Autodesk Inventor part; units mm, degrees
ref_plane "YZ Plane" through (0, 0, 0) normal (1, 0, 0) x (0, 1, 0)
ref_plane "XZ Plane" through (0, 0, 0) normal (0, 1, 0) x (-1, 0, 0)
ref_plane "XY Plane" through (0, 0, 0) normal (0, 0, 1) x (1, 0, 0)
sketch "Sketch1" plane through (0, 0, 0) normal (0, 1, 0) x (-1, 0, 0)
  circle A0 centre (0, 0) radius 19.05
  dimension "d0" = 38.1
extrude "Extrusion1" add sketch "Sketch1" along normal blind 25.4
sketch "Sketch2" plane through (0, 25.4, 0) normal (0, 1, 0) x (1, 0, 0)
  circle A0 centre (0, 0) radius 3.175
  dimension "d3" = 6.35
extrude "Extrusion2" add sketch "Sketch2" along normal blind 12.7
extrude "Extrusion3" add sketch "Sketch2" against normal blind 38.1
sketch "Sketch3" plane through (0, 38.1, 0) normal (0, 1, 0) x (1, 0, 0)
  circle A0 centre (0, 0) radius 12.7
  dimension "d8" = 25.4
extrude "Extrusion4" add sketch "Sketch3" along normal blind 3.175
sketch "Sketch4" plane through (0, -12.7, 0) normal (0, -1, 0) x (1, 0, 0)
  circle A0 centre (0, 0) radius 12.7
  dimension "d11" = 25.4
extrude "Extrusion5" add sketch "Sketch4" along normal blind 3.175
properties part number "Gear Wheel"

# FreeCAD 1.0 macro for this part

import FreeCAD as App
import Part
import Sketcher
Q = App.Units.Quantity

doc = App.newDocument("Part")
body = doc.addObject("PartDesign::Body", "Body")

# Sketch on XZ plane
sketch1 = body.newObject("Sketcher::SketchObject", "Sketch")
sketch1.AttachmentSupport = (doc.getObject("XZ_Plane"), [""])
sketch1.MapMode = "FlatFace"
sketch1.addGeometry(Part.Circle(App.Vector(0, 0, 0), App.Vector(0, 0, 1), 19), False)
sketch1.addConstraint(Sketcher.Constraint("Coincident", 0, 3, -1, 1))
sketch1.addConstraint(Sketcher.Constraint("Diameter", 0, Q("1.5 in")))
pad1 = body.newObject("PartDesign::Pad", "Pad")
pad1.Profile = sketch1
pad1.Length = Q("1 in")
pad1.Reversed = True

# Sketch on XZ plane
sketch2 = body.newObject("Sketcher::SketchObject", "Sketch001")
sketch2.AttachmentSupport = (doc.getObject("XZ_Plane"), [""])
sketch2.MapMode = "FlatFace"
sketch2.AttachmentOffset = App.Placement(App.Vector(0, 0, -1 * 25.4), App.Rotation())
sketch2.addGeometry(Part.Circle(App.Vector(0, 0, 0), App.Vector(0, 0, 1), 3.2), False)
sketch2.addConstraint(Sketcher.Constraint("Coincident", 0, 3, -1, 1))
sketch2.addConstraint(Sketcher.Constraint("Diameter", 0, Q("0.25 in")))
pad2 = body.newObject("PartDesign::Pad", "Pad001")
pad2.Profile = sketch2
pad2.Length = Q("0.5 in")
pad2.Reversed = True

# Sketch on XZ plane
sketch3 = body.newObject("Sketcher::SketchObject", "Sketch002")
sketch3.AttachmentSupport = (doc.getObject("XZ_Plane"), [""])
sketch3.MapMode = "FlatFace"
sketch3.AttachmentOffset = App.Placement(App.Vector(0, 0, -1 * 25.4), App.Rotation())
sketch3.addGeometry(Part.Circle(App.Vector(0, 0, 0), App.Vector(0, 0, 1), 3.2), False)
sketch3.addConstraint(Sketcher.Constraint("Coincident", 0, 3, -1, 1))
sketch3.addConstraint(Sketcher.Constraint("Diameter", 0, Q("0.25 in")))
pad3 = body.newObject("PartDesign::Pad", "Pad002")
pad3.Profile = sketch3
pad3.Length = Q("1.5 in")

# Sketch on XZ plane
sketch4 = body.newObject("Sketcher::SketchObject", "Sketch003")
sketch4.AttachmentSupport = (doc.getObject("XZ_Plane"), [""])
sketch4.MapMode = "FlatFace"
sketch4.AttachmentOffset = App.Placement(App.Vector(0, 0, -1.5 * 25.4), App.Rotation())
sketch4.addGeometry(Part.Circle(App.Vector(0, 0, 0), App.Vector(0, 0, 1), 13), False)
sketch4.addConstraint(Sketcher.Constraint("Coincident", 0, 3, -1, 1))
sketch4.addConstraint(Sketcher.Constraint("Diameter", 0, Q("1 in")))
pad4 = body.newObject("PartDesign::Pad", "Pad003")
pad4.Profile = sketch4
pad4.Length = Q("0.125 in")
pad4.Reversed = True

# Sketch on XZ plane
sketch5 = body.newObject("Sketcher::SketchObject", "Sketch004")
sketch5.AttachmentSupport = (doc.getObject("XZ_Plane"), [""])
sketch5.MapMode = "FlatFace"
sketch5.AttachmentOffset = App.Placement(App.Vector(0, 0, 0.5 * 25.4), App.Rotation())
sketch5.addGeometry(Part.Circle(App.Vector(0, 0, 0), App.Vector(0, 0, 1), 13), False)
sketch5.addConstraint(Sketcher.Constraint("Coincident", 0, 3, -1, 1))
sketch5.addConstraint(Sketcher.Constraint("Diameter", 0, Q("1 in")))
pad5 = body.newObject("PartDesign::Pad", "Pad004")
pad5.Profile = sketch5
pad5.Length = Q("0.125 in")

doc.recompute()
